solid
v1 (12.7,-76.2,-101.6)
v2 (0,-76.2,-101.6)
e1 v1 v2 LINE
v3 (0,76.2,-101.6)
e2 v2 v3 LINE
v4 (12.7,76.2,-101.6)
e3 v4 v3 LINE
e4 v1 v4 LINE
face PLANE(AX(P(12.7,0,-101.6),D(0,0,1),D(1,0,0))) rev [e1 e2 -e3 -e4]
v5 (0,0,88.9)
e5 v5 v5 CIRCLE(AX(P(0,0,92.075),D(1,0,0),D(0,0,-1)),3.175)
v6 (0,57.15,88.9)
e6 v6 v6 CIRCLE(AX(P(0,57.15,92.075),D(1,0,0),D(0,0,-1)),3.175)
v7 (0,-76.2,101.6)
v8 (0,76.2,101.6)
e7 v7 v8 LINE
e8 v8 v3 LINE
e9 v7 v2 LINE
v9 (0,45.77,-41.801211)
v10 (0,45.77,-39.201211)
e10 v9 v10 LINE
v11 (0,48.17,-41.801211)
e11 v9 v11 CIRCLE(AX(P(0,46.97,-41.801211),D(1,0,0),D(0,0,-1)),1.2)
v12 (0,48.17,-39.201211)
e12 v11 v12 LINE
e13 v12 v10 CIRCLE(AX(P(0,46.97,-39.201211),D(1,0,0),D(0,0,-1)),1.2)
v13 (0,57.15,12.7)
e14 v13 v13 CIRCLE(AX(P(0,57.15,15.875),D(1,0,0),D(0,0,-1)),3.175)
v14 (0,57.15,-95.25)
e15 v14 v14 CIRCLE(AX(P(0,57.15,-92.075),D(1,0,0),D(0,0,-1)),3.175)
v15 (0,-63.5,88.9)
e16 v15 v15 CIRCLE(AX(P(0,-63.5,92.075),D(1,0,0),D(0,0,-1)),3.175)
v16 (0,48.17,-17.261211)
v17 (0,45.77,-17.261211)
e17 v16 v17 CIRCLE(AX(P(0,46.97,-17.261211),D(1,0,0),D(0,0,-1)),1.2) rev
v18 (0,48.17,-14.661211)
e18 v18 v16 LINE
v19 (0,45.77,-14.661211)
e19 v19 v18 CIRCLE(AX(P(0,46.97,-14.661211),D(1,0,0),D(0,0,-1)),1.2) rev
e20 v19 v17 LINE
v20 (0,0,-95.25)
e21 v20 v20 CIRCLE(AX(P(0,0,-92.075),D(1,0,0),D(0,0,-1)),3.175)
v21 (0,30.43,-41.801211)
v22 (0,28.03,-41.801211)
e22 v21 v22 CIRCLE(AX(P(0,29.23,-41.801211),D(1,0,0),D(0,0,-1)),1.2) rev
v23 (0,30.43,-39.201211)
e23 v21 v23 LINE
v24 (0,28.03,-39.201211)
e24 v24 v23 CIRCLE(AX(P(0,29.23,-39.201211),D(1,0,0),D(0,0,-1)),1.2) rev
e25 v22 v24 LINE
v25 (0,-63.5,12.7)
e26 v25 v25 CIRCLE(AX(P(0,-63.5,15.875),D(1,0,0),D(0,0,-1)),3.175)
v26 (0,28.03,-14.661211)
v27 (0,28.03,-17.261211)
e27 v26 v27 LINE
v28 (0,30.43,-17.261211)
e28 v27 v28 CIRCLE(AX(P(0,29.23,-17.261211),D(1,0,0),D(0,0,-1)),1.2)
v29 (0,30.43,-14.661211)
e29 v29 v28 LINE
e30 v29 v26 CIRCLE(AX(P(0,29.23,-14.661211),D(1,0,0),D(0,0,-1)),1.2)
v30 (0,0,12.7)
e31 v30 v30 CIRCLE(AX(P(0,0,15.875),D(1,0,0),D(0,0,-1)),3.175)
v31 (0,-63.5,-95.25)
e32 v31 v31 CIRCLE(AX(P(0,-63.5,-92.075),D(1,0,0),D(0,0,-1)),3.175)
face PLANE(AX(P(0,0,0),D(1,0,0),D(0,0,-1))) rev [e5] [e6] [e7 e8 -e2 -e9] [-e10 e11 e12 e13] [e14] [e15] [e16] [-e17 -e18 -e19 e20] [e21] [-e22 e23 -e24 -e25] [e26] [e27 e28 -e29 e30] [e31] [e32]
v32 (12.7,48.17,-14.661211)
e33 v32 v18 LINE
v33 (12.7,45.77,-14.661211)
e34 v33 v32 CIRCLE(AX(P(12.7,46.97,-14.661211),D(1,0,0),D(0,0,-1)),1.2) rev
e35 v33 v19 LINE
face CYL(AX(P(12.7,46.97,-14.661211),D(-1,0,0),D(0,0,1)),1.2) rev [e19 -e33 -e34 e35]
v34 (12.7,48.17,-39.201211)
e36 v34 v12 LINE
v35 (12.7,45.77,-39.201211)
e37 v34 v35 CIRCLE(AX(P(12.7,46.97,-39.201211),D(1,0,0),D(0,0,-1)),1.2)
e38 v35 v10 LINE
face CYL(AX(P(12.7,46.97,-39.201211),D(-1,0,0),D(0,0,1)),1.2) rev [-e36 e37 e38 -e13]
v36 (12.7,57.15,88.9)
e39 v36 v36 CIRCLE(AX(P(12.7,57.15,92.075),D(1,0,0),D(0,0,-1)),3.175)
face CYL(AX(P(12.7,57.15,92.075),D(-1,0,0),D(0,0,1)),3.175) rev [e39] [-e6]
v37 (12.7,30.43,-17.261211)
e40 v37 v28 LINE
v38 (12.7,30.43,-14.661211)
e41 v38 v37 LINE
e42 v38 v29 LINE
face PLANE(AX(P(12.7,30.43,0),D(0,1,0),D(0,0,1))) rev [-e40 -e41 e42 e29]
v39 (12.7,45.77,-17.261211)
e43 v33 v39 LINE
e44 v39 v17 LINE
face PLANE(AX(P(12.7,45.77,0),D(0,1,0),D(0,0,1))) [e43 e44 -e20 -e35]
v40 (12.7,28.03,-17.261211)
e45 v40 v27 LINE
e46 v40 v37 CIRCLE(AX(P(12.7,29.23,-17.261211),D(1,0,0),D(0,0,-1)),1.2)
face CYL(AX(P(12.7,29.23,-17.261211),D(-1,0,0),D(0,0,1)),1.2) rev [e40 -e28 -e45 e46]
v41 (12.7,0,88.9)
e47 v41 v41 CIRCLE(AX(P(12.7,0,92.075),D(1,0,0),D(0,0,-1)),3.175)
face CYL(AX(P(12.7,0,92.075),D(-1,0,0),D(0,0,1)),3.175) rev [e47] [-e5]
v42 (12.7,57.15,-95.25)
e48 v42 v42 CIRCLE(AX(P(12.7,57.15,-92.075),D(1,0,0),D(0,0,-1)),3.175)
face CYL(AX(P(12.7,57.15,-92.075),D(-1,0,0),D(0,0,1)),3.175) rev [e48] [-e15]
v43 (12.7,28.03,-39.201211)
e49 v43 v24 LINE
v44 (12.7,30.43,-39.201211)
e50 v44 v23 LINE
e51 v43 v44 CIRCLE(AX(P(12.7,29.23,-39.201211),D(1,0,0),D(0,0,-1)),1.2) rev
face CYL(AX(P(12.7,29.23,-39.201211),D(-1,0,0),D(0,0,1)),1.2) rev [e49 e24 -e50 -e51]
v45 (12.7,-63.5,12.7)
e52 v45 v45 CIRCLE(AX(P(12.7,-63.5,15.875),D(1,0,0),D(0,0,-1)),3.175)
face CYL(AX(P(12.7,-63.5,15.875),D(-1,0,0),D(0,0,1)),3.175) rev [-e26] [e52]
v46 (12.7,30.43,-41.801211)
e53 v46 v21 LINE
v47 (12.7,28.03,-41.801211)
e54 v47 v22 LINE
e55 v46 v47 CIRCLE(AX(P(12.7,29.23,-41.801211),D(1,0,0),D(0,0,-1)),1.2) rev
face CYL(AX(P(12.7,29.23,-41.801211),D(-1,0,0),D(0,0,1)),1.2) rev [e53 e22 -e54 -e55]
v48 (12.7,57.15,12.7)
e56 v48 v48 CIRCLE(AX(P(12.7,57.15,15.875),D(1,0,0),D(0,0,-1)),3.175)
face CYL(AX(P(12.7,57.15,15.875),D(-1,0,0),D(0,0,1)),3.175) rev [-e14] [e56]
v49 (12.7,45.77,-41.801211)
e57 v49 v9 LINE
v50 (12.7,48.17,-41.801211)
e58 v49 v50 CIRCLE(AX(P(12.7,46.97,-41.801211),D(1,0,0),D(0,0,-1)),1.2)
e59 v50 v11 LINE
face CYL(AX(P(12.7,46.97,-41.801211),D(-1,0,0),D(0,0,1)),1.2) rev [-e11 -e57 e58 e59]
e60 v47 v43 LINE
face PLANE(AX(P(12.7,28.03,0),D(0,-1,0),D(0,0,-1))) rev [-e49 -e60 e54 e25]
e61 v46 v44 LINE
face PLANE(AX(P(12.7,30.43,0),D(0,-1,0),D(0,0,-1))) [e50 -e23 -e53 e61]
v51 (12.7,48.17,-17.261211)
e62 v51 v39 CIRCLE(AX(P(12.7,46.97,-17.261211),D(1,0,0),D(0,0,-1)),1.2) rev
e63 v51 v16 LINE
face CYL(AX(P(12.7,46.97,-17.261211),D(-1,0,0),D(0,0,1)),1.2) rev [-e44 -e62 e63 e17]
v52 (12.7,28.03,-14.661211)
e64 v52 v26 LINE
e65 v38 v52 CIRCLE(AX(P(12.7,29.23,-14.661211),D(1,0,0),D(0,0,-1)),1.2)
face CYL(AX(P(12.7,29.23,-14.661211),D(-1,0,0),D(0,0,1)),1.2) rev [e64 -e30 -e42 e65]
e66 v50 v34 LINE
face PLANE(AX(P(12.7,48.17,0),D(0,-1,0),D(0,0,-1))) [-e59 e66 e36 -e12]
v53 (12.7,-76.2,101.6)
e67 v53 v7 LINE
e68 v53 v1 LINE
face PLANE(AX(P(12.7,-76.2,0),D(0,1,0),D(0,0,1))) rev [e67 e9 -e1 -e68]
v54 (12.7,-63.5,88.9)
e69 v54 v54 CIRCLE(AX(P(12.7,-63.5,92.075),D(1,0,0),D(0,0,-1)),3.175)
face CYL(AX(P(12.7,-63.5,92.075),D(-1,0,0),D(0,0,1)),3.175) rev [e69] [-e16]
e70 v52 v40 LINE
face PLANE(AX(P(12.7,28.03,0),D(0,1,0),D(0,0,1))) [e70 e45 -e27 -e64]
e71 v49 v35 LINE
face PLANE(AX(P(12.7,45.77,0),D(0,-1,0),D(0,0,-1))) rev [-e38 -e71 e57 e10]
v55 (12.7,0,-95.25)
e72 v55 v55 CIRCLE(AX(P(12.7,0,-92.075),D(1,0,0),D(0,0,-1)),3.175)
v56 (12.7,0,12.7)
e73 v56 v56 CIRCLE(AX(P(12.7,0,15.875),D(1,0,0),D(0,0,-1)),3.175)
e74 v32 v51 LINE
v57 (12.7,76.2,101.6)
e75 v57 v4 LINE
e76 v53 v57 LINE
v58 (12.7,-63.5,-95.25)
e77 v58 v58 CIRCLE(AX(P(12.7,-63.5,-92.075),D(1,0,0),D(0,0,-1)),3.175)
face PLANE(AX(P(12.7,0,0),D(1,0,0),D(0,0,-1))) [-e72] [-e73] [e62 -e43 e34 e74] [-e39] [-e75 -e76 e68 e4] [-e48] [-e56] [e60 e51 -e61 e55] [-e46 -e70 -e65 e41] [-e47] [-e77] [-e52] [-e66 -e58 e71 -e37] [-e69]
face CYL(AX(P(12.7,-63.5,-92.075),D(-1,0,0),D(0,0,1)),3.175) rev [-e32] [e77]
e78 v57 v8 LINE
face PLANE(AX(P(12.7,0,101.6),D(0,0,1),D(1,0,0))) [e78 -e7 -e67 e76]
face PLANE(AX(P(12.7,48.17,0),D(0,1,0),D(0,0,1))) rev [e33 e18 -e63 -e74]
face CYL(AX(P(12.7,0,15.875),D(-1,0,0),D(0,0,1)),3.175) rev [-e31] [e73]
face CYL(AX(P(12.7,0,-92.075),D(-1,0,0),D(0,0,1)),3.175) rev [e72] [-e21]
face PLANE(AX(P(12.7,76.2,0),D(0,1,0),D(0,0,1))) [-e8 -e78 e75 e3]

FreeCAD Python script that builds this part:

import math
import FreeCAD as App
import Part
import Sketcher
Q = App.Units.Quantity

doc = App.newDocument("Part")
body = doc.addObject("PartDesign::Body", "Body")

# Sketch on YZ plane
sketch1 = body.newObject("Sketcher::SketchObject", "Sketch")
sketch1.AttachmentSupport = (doc.getObject("YZ_Plane"), [""])
sketch1.MapMode = "FlatFace"
sketch1.addGeometry(Part.LineSegment(App.Vector(76.2, 101.6, 0), App.Vector(-76.2, 101.6, 0)), False)
sketch1.addGeometry(Part.LineSegment(App.Vector(-76.2, 101.6, 0), App.Vector(-76.2, -101.6, 0)), False)
sketch1.addGeometry(Part.LineSegment(App.Vector(-76.2, -101.6, 0), App.Vector(76.2, -101.6, 0)), False)
sketch1.addGeometry(Part.LineSegment(App.Vector(76.2, -101.6, 0), App.Vector(76.2, 101.6, 0)), False)
sketch1.addGeometry(Part.Circle(App.Vector(-63.5, 92.075, 0), App.Vector(0, 0, 1), 3.175), False)
sketch1.addGeometry(Part.Circle(App.Vector(-63.5, 15.875, 0), App.Vector(0, 0, 1), 3.175), False)
sketch1.addGeometry(Part.Circle(App.Vector(-63.5, -92.075, 0), App.Vector(0, 0, 1), 3.175), False)
sketch1.addGeometry(Part.Circle(App.Vector(0, 92.075, 0), App.Vector(0, 0, 1), 3.175), False)
sketch1.addGeometry(Part.Circle(App.Vector(0, 15.875, 0), App.Vector(0, 0, 1), 3.175), False)
sketch1.addGeometry(Part.Circle(App.Vector(57.15, 92.075, 0), App.Vector(0, 0, 1), 3.175), False)
sketch1.addGeometry(Part.Circle(App.Vector(57.15, 15.875, 0), App.Vector(0, 0, 1), 3.175), False)
sketch1.addGeometry(Part.Circle(App.Vector(0, -92.075, 0), App.Vector(0, 0, 1), 3.175), False)
sketch1.addGeometry(Part.LineSegment(App.Vector(30.43, -14.661211, 0), App.Vector(30.43, -17.261211, 0)), False)
sketch1.addGeometry(Part.ArcOfCircle(Part.Circle(App.Vector(29.23, -17.261211, 0), App.Vector(0, 0, 1), 1.2), math.radians(180), math.radians(360)), False)
sketch1.addGeometry(Part.LineSegment(App.Vector(28.03, -17.261211, 0), App.Vector(28.03, -14.661211, 0)), False)
sketch1.addGeometry(Part.ArcOfCircle(Part.Circle(App.Vector(29.23, -14.661211, 0), App.Vector(0, 0, 1), 1.2), math.radians(0), math.radians(180)), False)
sketch1.addGeometry(Part.ArcOfCircle(Part.Circle(App.Vector(29.23, -41.801211, 0), App.Vector(0, 0, 1), 1.2), math.radians(180), math.radians(360)), False)
sketch1.addGeometry(Part.LineSegment(App.Vector(28.03, -41.801211, 0), App.Vector(28.03, -39.201211, 0)), False)
sketch1.addGeometry(Part.ArcOfCircle(Part.Circle(App.Vector(29.23, -39.201211, 0), App.Vector(0, 0, 1), 1.2), math.radians(0), math.radians(180)), False)
sketch1.addGeometry(Part.LineSegment(App.Vector(30.43, -39.201211, 0), App.Vector(30.43, -41.801211, 0)), False)
sketch1.addGeometry(Part.ArcOfCircle(Part.Circle(App.Vector(46.97, -14.661211, 0), App.Vector(0, 0, 1), 1.2), math.radians(0), math.radians(180)), False)
sketch1.addGeometry(Part.LineSegment(App.Vector(48.17, -14.661211, 0), App.Vector(48.17, -17.261211, 0)), False)
sketch1.addGeometry(Part.ArcOfCircle(Part.Circle(App.Vector(46.97, -17.261211, 0), App.Vector(0, 0, 1), 1.2), math.radians(180), math.radians(360)), False)
sketch1.addGeometry(Part.LineSegment(App.Vector(45.77, -17.261211, 0), App.Vector(45.77, -14.661211, 0)), False)
sketch1.addGeometry(Part.LineSegment(App.Vector(48.17, -39.201211, 0), App.Vector(48.17, -41.801211, 0)), False)
sketch1.addGeometry(Part.ArcOfCircle(Part.Circle(App.Vector(46.97, -41.801211, 0), App.Vector(0, 0, 1), 1.2), math.radians(180), math.radians(360)), False)
sketch1.addGeometry(Part.LineSegment(App.Vector(45.77, -41.801211, 0), App.Vector(45.77, -39.201211, 0)), False)
sketch1.addGeometry(Part.ArcOfCircle(Part.Circle(App.Vector(46.97, -39.201211, 0), App.Vector(0, 0, 1), 1.2), math.radians(0), math.radians(180)), False)
sketch1.addGeometry(Part.Circle(App.Vector(57.15, -92.075, 0), App.Vector(0, 0, 1), 3.175), False)
sketch1.addConstraint(Sketcher.Constraint("Coincident", 0, 2, 1, 1))
sketch1.addConstraint(Sketcher.Constraint("Coincident", 1, 2, 2, 1))
sketch1.addConstraint(Sketcher.Constraint("Coincident", 2, 2, 3, 1))
sketch1.addConstraint(Sketcher.Constraint("Coincident", 3, 2, 0, 1))
sketch1.addConstraint(Sketcher.Constraint("Tangent", 12, 2, 13, 2))
sketch1.addConstraint(Sketcher.Constraint("Tangent", 13, 1, 14, 1))
sketch1.addConstraint(Sketcher.Constraint("Tangent", 14, 2, 15, 2))
sketch1.addConstraint(Sketcher.Constraint("Tangent", 15, 1, 12, 1))
sketch1.addConstraint(Sketcher.Constraint("Tangent", 16, 1, 17, 1))
sketch1.addConstraint(Sketcher.Constraint("Tangent", 17, 2, 18, 2))
sketch1.addConstraint(Sketcher.Constraint("Tangent", 18, 1, 19, 1))
sketch1.addConstraint(Sketcher.Constraint("Tangent", 19, 2, 16, 2))
sketch1.addConstraint(Sketcher.Constraint("Tangent", 20, 1, 21, 1))
sketch1.addConstraint(Sketcher.Constraint("Tangent", 21, 2, 22, 2))
sketch1.addConstraint(Sketcher.Constraint("Tangent", 22, 1, 23, 1))
sketch1.addConstraint(Sketcher.Constraint("Tangent", 23, 2, 20, 2))
sketch1.addConstraint(Sketcher.Constraint("Tangent", 24, 2, 25, 2))
sketch1.addConstraint(Sketcher.Constraint("Tangent", 25, 1, 26, 1))
sketch1.addConstraint(Sketcher.Constraint("Tangent", 26, 2, 27, 2))
sketch1.addConstraint(Sketcher.Constraint("Tangent", 27, 1, 24, 1))
sketch1.addConstraint(Sketcher.Constraint("Horizontal", 0))
sketch1.addConstraint(Sketcher.Constraint("Vertical", 1))
sketch1.addConstraint(Sketcher.Constraint("Horizontal", 2))
sketch1.addConstraint(Sketcher.Constraint("Vertical", 3))
sketch1.addConstraint(Sketcher.Constraint("Vertical", 12))
sketch1.addConstraint(Sketcher.Constraint("Vertical", 14))
sketch1.addConstraint(Sketcher.Constraint("Vertical", 17))
sketch1.addConstraint(Sketcher.Constraint("Vertical", 19))
sketch1.addConstraint(Sketcher.Constraint("Vertical", 21))
sketch1.addConstraint(Sketcher.Constraint("Vertical", 23))
sketch1.addConstraint(Sketcher.Constraint("Vertical", 24))
sketch1.addConstraint(Sketcher.Constraint("Vertical", 26))
sketch1.addConstraint(Sketcher.Constraint("Equal", 4, 5))
sketch1.addConstraint(Sketcher.Constraint("Equal", 5, 6))
sketch1.addConstraint(Sketcher.Constraint("Equal", 6, 7))
sketch1.addConstraint(Sketcher.Constraint("Equal", 7, 8))
sketch1.addConstraint(Sketcher.Constraint("Equal", 8, 9))
sketch1.addConstraint(Sketcher.Constraint("Equal", 9, 10))
sketch1.addConstraint(Sketcher.Constraint("Equal", 10, 11))
sketch1.addConstraint(Sketcher.Constraint("Equal", 15, 16))
sketch1.addConstraint(Sketcher.Constraint("Equal", 18, 20))
sketch1.addConstraint(Sketcher.Constraint("Equal", 22, 25))
sketch1.addConstraint(Sketcher.Constraint("Equal", 11, 28))
sketch1.addConstraint(Sketcher.Constraint("Symmetric", 7, 3, 11, 3, -1, 1))
sketch1.addConstraint(Sketcher.Constraint("Symmetric", 0, 2, 2, 2, -1, 1))
sketch1.addConstraint(Sketcher.Constraint("Symmetric", 4, 3, 6, 3, -1))
sketch1.addConstraint(Sketcher.Constraint("Symmetric", 9, 3, 28, 3, -1))
sketch1.addConstraint(Sketcher.Constraint("PointOnObject", 7, 3, -2))
sketch1.addConstraint(Sketcher.Constraint("PointOnObject", 8, 3, -2))
sketch1.addConstraint(Sketcher.Constraint("Horizontal", 4, 3, 7, 3))
sketch1.addConstraint(Sketcher.Constraint("Horizontal", 5, 3, 8, 3))
sketch1.addConstraint(Sketcher.Constraint("Horizontal", 7, 3, 9, 3))
sketch1.addConstraint(Sketcher.Constraint("Horizontal", 8, 3, 10, 3))
sketch1.addConstraint(Sketcher.Constraint("Horizontal", 15, 3, 20, 3))
sketch1.addConstraint(Sketcher.Constraint("Horizontal", 13, 3, 22, 3))
sketch1.addConstraint(Sketcher.Constraint("Horizontal", 16, 3, 25, 3))
sketch1.addConstraint(Sketcher.Constraint("Horizontal", 18, 3, 27, 3))
sketch1.addConstraint(Sketcher.Constraint("Vertical", 4, 3, 5, 3))
sketch1.addConstraint(Sketcher.Constraint("Vertical", 9, 3, 10, 3))
sketch1.addConstraint(Sketcher.Constraint("Vertical", 15, 3, 16, 3))
sketch1.addConstraint(Sketcher.Constraint("Vertical", 22, 3, 25, 3))
sketch1.addConstraint(Sketcher.Constraint("Equal", 14, 17))
sketch1.addConstraint(Sketcher.Constraint("Diameter", 4, Q("0.25 in")))
sketch1.addConstraint(Sketcher.Constraint("DistanceX", 0, 2, 0, 1, Q("6 in")))
sketch1.addConstraint(Sketcher.Constraint("DistanceY", 1, 2, 1, 1, Q("8 in")))
sketch1.addConstraint(Sketcher.Constraint("DistanceY", 5, 3, 4, 3, Q("3 in")))
sketch1.addConstraint(Sketcher.Constraint("DistanceX", 4, 3, -1, 1, Q("2.5 in")))
sketch1.addConstraint(Sketcher.Constraint("DistanceX", -1, 1, 9, 3, Q("2.25 in")))
sketch1.addConstraint(Sketcher.Constraint("Radius", 13, Q("1.2 mm")))
sketch1.addConstraint(Sketcher.Constraint("DistanceY", 6, 3, 5, 3, Q("4.25 in")))
sketch1.addConstraint(Sketcher.Constraint("DistanceY", 12, 2, 12, 1, Q("2.6 mm")))
sketch1.addConstraint(Sketcher.Constraint("DistanceX", -1, 1, 13, 3, Q("29.23 mm")))
sketch1.addConstraint(Sketcher.Constraint("DistanceX", -1, 1, 20, 3, Q("46.97 mm")))
sketch1.addConstraint(Sketcher.Constraint("DistanceY", 16, 3, 13, 3, Q("24.54 mm")))
sketch1.addConstraint(Sketcher.Constraint("DistanceY", 13, 3, -1, 1, Q("17.261211 mm")))
pad1 = body.newObject("PartDesign::Pad", "Pad")
pad1.Profile = sketch1
pad1.Length = Q("0.5 in")

doc.recompute()
